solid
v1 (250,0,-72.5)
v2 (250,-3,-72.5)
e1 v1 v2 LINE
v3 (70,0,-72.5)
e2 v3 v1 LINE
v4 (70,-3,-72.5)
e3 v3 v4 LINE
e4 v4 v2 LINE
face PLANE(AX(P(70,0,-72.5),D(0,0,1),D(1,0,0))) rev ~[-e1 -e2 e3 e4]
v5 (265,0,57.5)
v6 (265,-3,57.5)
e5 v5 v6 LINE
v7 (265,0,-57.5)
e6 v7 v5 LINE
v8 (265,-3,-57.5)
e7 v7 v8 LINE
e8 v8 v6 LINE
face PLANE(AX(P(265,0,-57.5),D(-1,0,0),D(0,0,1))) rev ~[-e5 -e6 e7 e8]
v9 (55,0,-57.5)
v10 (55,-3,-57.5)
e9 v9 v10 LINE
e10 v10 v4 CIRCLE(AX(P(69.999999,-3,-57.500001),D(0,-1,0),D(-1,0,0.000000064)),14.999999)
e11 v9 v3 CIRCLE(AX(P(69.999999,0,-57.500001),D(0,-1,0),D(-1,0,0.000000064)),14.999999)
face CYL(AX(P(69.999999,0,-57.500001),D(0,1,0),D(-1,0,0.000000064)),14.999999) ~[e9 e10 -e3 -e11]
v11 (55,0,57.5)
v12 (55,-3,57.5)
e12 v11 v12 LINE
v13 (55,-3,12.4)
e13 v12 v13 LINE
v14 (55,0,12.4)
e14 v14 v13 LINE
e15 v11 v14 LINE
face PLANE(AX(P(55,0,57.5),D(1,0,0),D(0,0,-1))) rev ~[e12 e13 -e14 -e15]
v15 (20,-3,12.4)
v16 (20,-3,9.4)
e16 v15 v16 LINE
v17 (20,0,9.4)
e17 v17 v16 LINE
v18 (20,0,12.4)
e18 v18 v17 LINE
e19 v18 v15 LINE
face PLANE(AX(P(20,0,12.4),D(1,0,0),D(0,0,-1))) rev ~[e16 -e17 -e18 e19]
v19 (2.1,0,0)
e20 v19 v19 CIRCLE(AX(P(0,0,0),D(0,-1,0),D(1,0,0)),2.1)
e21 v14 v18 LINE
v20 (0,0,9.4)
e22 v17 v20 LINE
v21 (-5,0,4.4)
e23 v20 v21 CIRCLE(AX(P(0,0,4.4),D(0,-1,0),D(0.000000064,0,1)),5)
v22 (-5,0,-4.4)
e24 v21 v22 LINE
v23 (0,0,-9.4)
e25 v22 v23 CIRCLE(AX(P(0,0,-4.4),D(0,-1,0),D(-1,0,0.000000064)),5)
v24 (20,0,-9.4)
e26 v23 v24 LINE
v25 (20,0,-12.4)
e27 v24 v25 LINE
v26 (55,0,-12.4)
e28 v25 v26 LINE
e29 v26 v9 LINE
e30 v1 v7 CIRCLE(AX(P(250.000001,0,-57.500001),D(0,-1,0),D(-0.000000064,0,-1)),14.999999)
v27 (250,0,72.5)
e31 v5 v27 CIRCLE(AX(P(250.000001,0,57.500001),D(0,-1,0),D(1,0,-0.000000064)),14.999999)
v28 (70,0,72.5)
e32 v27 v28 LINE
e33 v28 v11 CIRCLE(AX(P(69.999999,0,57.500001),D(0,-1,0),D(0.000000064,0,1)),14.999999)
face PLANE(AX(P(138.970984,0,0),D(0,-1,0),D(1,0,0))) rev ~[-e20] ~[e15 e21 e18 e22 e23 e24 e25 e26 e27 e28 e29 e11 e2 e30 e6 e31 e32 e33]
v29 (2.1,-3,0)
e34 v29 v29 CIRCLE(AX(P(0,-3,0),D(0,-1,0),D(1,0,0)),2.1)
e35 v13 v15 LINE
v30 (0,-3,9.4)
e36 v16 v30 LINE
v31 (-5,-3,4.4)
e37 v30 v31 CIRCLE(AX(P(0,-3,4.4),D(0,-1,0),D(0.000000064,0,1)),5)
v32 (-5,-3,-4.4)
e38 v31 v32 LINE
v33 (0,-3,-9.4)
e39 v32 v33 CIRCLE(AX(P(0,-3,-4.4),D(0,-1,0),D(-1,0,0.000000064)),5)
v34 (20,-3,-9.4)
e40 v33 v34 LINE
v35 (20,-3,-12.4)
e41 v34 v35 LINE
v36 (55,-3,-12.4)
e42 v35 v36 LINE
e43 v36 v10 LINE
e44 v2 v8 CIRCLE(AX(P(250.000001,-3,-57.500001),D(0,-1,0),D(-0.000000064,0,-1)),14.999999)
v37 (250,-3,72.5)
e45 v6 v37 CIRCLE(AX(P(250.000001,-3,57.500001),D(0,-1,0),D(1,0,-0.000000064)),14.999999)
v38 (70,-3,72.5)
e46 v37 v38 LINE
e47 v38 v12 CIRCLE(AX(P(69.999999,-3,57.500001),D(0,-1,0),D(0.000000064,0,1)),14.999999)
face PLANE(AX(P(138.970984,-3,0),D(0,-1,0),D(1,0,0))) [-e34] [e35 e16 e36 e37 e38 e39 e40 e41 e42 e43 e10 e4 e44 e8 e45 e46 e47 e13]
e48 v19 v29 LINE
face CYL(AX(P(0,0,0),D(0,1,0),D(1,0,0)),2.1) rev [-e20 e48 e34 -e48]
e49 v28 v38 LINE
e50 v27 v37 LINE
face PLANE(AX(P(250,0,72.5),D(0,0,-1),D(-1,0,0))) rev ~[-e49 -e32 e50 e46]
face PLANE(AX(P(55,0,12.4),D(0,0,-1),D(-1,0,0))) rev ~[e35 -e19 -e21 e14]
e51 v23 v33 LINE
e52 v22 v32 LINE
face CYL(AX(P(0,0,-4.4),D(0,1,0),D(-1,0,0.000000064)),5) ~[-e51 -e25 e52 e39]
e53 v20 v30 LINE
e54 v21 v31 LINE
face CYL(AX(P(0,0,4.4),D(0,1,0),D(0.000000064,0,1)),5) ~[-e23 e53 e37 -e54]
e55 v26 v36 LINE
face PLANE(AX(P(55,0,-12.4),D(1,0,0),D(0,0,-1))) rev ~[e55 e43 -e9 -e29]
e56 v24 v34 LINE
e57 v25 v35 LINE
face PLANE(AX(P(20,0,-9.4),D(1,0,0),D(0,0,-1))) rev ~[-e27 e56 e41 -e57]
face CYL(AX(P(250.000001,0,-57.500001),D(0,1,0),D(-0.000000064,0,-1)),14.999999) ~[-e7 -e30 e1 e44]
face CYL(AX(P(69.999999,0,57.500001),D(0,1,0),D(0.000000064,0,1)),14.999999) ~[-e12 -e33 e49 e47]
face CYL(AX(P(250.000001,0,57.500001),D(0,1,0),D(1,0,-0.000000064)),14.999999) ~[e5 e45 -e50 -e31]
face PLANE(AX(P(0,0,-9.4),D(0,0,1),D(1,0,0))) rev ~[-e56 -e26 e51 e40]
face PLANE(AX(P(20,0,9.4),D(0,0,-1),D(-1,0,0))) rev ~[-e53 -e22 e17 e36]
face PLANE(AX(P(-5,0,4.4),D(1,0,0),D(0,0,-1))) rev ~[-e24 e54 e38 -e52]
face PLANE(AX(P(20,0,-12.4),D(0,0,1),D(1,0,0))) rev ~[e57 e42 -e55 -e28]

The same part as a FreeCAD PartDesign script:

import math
import FreeCAD as App
import Part
import Sketcher

V = App.Vector

doc = App.newDocument("Part")
body = doc.addObject("PartDesign::Body", "Body")

sketch1 = body.newObject("Sketcher::SketchObject", "Sketch")
sketch1.AttachmentSupport = (doc.getObject("XZ_Plane"), [""])
sketch1.MapMode = "FlatFace"
sketch1.addGeometry([
    Part.LineSegment(V(70, -72.5, 0), V(250, -72.5, 0)),
    Part.ArcOfCircle(Part.Circle(V(250, -57.5, 0), V(0, 0, 1), 15), math.radians(-90), math.radians(0)),
    Part.LineSegment(V(265, -57.5, 0), V(265, 57.5, 0)),
    Part.ArcOfCircle(Part.Circle(V(250, 57.5, 0), V(0, 0, 1), 15), math.radians(0), math.radians(90)),
    Part.LineSegment(V(250, 72.5, 0), V(70, 72.5, 0)),
    Part.ArcOfCircle(Part.Circle(V(70, 57.5, 0), V(0, 0, 1), 15), math.radians(90), math.radians(180)),
    Part.LineSegment(V(55, 57.5, 0), V(55, 12.4, 0)),
    Part.LineSegment(V(55, 12.4, 0), V(20, 12.4, 0)),
    Part.LineSegment(V(20, 12.4, 0), V(20, 9.4, 0)),
    Part.LineSegment(V(20, 9.4, 0), V(0, 9.4, 0)),
    Part.ArcOfCircle(Part.Circle(V(0, 4.4, 0), V(0, 0, 1), 5), math.radians(90), math.radians(180)),
    Part.LineSegment(V(-5, 4.4, 0), V(-5, -4.4, 0)),
    Part.ArcOfCircle(Part.Circle(V(0, -4.4, 0), V(0, 0, 1), 5), math.radians(180), math.radians(270)),
    Part.LineSegment(V(0, -9.4, 0), V(20, -9.4, 0)),
    Part.LineSegment(V(20, -9.4, 0), V(20, -12.4, 0)),
    Part.LineSegment(V(20, -12.4, 0), V(55, -12.4, 0)),
    Part.LineSegment(V(55, -12.4, 0), V(55, -57.5, 0)),
    Part.ArcOfCircle(Part.Circle(V(70, -57.5, 0), V(0, 0, 1), 15), math.radians(180), math.radians(270)),
    Part.Circle(V(0, 0, 0), V(0, 0, 1), 2.1),
], False)
sketch1.addConstraint([
    Sketcher.Constraint("Tangent", 0, 2, 1, 1),
    Sketcher.Constraint("Tangent", 1, 2, 2, 1),
    Sketcher.Constraint("Tangent", 2, 2, 3, 1),
    Sketcher.Constraint("Tangent", 3, 2, 4, 1),
    Sketcher.Constraint("Tangent", 4, 2, 5, 1),
    Sketcher.Constraint("Tangent", 5, 2, 6, 1),
    Sketcher.Constraint("Coincident", 6, 2, 7, 1),
    Sketcher.Constraint("Coincident", 7, 2, 8, 1),
    Sketcher.Constraint("Coincident", 8, 2, 9, 1),
    Sketcher.Constraint("Tangent", 9, 2, 10, 1),
    Sketcher.Constraint("Tangent", 10, 2, 11, 1),
    Sketcher.Constraint("Tangent", 11, 2, 12, 1),
    Sketcher.Constraint("Tangent", 12, 2, 13, 1),
    Sketcher.Constraint("Coincident", 13, 2, 14, 1),
    Sketcher.Constraint("Coincident", 14, 2, 15, 1),
    Sketcher.Constraint("Coincident", 15, 2, 16, 1),
    Sketcher.Constraint("Tangent", 16, 2, 17, 1),
    Sketcher.Constraint("Tangent", 17, 2, 0, 1),
    Sketcher.Constraint("Horizontal", 0),
    Sketcher.Constraint("Vertical", 2),
    Sketcher.Constraint("Horizontal", 4),
    Sketcher.Constraint("Vertical", 6),
    Sketcher.Constraint("Horizontal", 7),
    Sketcher.Constraint("Vertical", 8),
    Sketcher.Constraint("Horizontal", 9),
    Sketcher.Constraint("Vertical", 11),
    Sketcher.Constraint("Horizontal", 13),
    Sketcher.Constraint("Vertical", 14),
    Sketcher.Constraint("Horizontal", 15),
    Sketcher.Constraint("Vertical", 16),
    Sketcher.Constraint("Coincident", 18, 3, -1, 1),
    Sketcher.Constraint("Equal", 1, 3),
    Sketcher.Constraint("Equal", 3, 5),
    Sketcher.Constraint("Equal", 10, 12),
    Sketcher.Constraint("Equal", 5, 17),
    Sketcher.Constraint("Symmetric", 10, 3, 12, 3, -1, 1),
    Sketcher.Constraint("Symmetric", 5, 3, 17, 3, -1),
    Sketcher.Constraint("Symmetric", 7, 2, 14, 2, -1),
    Sketcher.Constraint("Radius", 1, 14.999999),
    Sketcher.Constraint("Radius", 10, 5.0),
    Sketcher.Constraint("Diameter", 18, 4.2),
    Sketcher.Constraint("DistanceX", 0, 1, 0, 2, 180.0),
    Sketcher.Constraint("DistanceX", 7, 2, 7, 1, 35.0),
    Sketcher.Constraint("DistanceX", 9, 2, 9, 1, 20.0),
    Sketcher.Constraint("DistanceY", 2, 1, 2, 2, 115.0),
    Sketcher.Constraint("DistanceY", 8, 2, 8, 1, 3.0),
    Sketcher.Constraint("DistanceY", 6, 2, 6, 1, 45.1),
])
pad1 = body.newObject("PartDesign::Pad", "Pad")
pad1.Profile = sketch1
pad1.Length = 3

doc.recompute()
